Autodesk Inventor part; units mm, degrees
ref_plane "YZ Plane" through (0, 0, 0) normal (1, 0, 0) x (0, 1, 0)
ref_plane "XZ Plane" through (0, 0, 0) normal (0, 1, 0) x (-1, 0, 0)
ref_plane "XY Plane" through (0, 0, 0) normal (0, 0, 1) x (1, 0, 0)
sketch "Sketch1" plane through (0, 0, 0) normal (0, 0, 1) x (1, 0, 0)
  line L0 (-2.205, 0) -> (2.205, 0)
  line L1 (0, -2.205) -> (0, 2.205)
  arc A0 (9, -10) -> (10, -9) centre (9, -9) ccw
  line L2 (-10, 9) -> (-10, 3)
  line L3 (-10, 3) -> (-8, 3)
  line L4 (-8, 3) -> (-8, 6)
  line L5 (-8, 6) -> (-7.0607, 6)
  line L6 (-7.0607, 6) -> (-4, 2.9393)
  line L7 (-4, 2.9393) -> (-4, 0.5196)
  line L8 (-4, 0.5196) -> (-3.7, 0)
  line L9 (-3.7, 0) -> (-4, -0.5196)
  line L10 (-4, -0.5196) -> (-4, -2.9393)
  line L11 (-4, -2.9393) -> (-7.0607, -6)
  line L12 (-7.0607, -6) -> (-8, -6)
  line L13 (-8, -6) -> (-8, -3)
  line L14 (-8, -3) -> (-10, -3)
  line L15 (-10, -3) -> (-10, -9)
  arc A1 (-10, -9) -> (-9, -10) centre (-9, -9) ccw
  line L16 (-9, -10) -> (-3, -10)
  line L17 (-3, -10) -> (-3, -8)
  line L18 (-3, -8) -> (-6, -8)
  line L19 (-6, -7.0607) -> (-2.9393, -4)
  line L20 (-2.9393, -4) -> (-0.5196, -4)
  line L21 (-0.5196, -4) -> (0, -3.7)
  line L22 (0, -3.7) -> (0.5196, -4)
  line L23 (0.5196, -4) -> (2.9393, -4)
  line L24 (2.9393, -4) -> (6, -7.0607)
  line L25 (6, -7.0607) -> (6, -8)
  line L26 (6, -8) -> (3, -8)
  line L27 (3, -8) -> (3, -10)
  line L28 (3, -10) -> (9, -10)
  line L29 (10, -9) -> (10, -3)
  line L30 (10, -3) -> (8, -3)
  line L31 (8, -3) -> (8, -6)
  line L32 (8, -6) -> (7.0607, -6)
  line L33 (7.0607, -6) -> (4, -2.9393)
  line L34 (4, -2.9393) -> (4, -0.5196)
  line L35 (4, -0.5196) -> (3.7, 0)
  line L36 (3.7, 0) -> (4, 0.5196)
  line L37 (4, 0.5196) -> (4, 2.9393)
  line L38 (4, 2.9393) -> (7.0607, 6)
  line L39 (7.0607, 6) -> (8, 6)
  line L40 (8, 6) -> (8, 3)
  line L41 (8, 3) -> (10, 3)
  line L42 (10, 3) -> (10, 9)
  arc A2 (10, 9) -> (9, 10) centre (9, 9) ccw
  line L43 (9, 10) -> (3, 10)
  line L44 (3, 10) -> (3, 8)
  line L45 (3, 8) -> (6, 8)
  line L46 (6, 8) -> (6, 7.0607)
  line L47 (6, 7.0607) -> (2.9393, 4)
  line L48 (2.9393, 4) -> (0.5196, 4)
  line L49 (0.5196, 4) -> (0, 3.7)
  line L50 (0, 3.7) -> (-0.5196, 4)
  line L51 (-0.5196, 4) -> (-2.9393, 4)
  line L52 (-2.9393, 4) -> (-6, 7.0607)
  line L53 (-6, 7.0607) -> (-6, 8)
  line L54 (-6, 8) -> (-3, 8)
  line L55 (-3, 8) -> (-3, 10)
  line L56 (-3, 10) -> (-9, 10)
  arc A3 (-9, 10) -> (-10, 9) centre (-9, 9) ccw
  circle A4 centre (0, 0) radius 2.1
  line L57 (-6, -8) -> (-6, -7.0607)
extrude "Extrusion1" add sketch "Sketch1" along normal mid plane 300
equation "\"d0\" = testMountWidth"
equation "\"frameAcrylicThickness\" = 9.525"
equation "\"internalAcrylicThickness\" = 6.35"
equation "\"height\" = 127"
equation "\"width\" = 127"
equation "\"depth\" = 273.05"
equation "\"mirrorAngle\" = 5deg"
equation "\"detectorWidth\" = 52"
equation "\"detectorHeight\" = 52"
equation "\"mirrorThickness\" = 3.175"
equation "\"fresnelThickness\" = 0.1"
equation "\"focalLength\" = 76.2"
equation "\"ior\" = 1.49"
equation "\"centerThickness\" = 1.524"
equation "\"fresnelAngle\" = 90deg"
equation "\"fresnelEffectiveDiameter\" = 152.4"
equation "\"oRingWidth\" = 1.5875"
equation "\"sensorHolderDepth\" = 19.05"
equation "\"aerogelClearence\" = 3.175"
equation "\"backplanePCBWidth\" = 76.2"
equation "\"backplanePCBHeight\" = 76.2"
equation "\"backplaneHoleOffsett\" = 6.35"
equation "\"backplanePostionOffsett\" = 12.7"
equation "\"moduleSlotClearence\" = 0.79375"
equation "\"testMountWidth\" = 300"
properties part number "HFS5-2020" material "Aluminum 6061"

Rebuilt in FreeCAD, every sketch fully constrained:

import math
import FreeCAD as App
import Part
import Sketcher
Q = App.Units.Quantity

doc = App.newDocument("Part")
body = doc.addObject("PartDesign::Body", "Body")

# Sketch on XY plane
sketch1 = doc.addObject("Sketcher::SketchObject", "Sketch")
body.addObject(sketch1)
sketch1.AttachmentSupport = (doc.XY_Plane, [""])
sketch1.MapMode = "FlatFace"
sketch1.addGeometry(Part.LineSegment(App.Vector(3, -10, 0), App.Vector(9, -10, 0)), False)
sketch1.addGeometry(Part.ArcOfCircle(Part.Circle(App.Vector(9, -9, 0), App.Vector(0, 0, 1), 1), math.radians(-90), math.radians(0)), False)
sketch1.addGeometry(Part.LineSegment(App.Vector(10, -9, 0), App.Vector(10, -3, 0)), False)
sketch1.addGeometry(Part.LineSegment(App.Vector(10, -3, 0), App.Vector(8, -3, 0)), False)
sketch1.addGeometry(Part.LineSegment(App.Vector(8, -3, 0), App.Vector(8, -6, 0)), False)
sketch1.addGeometry(Part.LineSegment(App.Vector(8, -6, 0), App.Vector(7.1, -6, 0)), False)
sketch1.addGeometry(Part.LineSegment(App.Vector(7.1, -6, 0), App.Vector(4, -2.9, 0)), False)
sketch1.addGeometry(Part.LineSegment(App.Vector(4, -2.9, 0), App.Vector(4, -0.5, 0)), False)
sketch1.addGeometry(Part.LineSegment(App.Vector(4, -0.5, 0), App.Vector(3.7, 0, 0)), False)
sketch1.addGeometry(Part.LineSegment(App.Vector(3.7, 0, 0), App.Vector(4, 0.5, 0)), False)
sketch1.addGeometry(Part.LineSegment(App.Vector(4, 0.5, 0), App.Vector(4, 2.9, 0)), False)
sketch1.addGeometry(Part.LineSegment(App.Vector(4, 2.9, 0), App.Vector(7.1, 6, 0)), False)
sketch1.addGeometry(Part.LineSegment(App.Vector(7.1, 6, 0), App.Vector(8, 6, 0)), False)
sketch1.addGeometry(Part.LineSegment(App.Vector(8, 6, 0), App.Vector(8, 3, 0)), False)
sketch1.addGeometry(Part.LineSegment(App.Vector(8, 3, 0), App.Vector(10, 3, 0)), False)
sketch1.addGeometry(Part.LineSegment(App.Vector(10, 3, 0), App.Vector(10, 9, 0)), False)
sketch1.addGeometry(Part.ArcOfCircle(Part.Circle(App.Vector(9, 9, 0), App.Vector(0, 0, 1), 1), math.radians(0), math.radians(90)), False)
sketch1.addGeometry(Part.LineSegment(App.Vector(9, 10, 0), App.Vector(3, 10, 0)), False)
sketch1.addGeometry(Part.LineSegment(App.Vector(3, 10, 0), App.Vector(3, 8, 0)), False)
sketch1.addGeometry(Part.LineSegment(App.Vector(3, 8, 0), App.Vector(6, 8, 0)), False)
sketch1.addGeometry(Part.LineSegment(App.Vector(6, 8, 0), App.Vector(6, 7.1, 0)), False)
sketch1.addGeometry(Part.LineSegment(App.Vector(6, 7.1, 0), App.Vector(2.9, 4, 0)), False)
sketch1.addGeometry(Part.LineSegment(App.Vector(2.9, 4, 0), App.Vector(0.5, 4, 0)), False)
sketch1.addGeometry(Part.LineSegment(App.Vector(0.5, 4, 0), App.Vector(0, 3.7, 0)), False)
sketch1.addGeometry(Part.LineSegment(App.Vector(0, 3.7, 0), App.Vector(-0.5, 4, 0)), False)
sketch1.addGeometry(Part.LineSegment(App.Vector(-0.5, 4, 0), App.Vector(-2.9, 4, 0)), False)
sketch1.addGeometry(Part.LineSegment(App.Vector(-2.9, 4, 0), App.Vector(-6, 7.1, 0)), False)
sketch1.addGeometry(Part.LineSegment(App.Vector(-6, 7.1, 0), App.Vector(-6, 8, 0)), False)
sketch1.addGeometry(Part.LineSegment(App.Vector(-6, 8, 0), App.Vector(-3, 8, 0)), False)
sketch1.addGeometry(Part.LineSegment(App.Vector(-3, 8, 0), App.Vector(-3, 10, 0)), False)
sketch1.addGeometry(Part.LineSegment(App.Vector(-3, 10, 0), App.Vector(-9, 10, 0)), False)
sketch1.addGeometry(Part.ArcOfCircle(Part.Circle(App.Vector(-9, 9, 0), App.Vector(0, 0, 1), 1), math.radians(90), math.radians(180)), False)
sketch1.addGeometry(Part.LineSegment(App.Vector(-10, 9, 0), App.Vector(-10, 3, 0)), False)
sketch1.addGeometry(Part.LineSegment(App.Vector(-10, 3, 0), App.Vector(-8, 3, 0)), False)
sketch1.addGeometry(Part.LineSegment(App.Vector(-8, 3, 0), App.Vector(-8, 6, 0)), False)
sketch1.addGeometry(Part.LineSegment(App.Vector(-8, 6, 0), App.Vector(-7.1, 6, 0)), False)
sketch1.addGeometry(Part.LineSegment(App.Vector(-7.1, 6, 0), App.Vector(-4, 2.9, 0)), False)
sketch1.addGeometry(Part.LineSegment(App.Vector(-4, 2.9, 0), App.Vector(-4, 0.5, 0)), False)
sketch1.addGeometry(Part.LineSegment(App.Vector(-4, 0.5, 0), App.Vector(-3.7, 0, 0)), False)
sketch1.addGeometry(Part.LineSegment(App.Vector(-3.7, 0, 0), App.Vector(-4, -0.5, 0)), False)
sketch1.addGeometry(Part.LineSegment(App.Vector(-4, -0.5, 0), App.Vector(-4, -2.9, 0)), False)
sketch1.addGeometry(Part.LineSegment(App.Vector(-4, -2.9, 0), App.Vector(-7.1, -6, 0)), False)
sketch1.addGeometry(Part.LineSegment(App.Vector(-7.1, -6, 0), App.Vector(-8, -6, 0)), False)
sketch1.addGeometry(Part.LineSegment(App.Vector(-8, -6, 0), App.Vector(-8, -3, 0)), False)
sketch1.addGeometry(Part.LineSegment(App.Vector(-8, -3, 0), App.Vector(-10, -3, 0)), False)
sketch1.addGeometry(Part.LineSegment(App.Vector(-10, -3, 0), App.Vector(-10, -9, 0)), False)
sketch1.addGeometry(Part.ArcOfCircle(Part.Circle(App.Vector(-9, -9, 0), App.Vector(0, 0, 1), 1), math.radians(180), math.radians(270)), False)
sketch1.addGeometry(Part.LineSegment(App.Vector(-9, -10, 0), App.Vector(-3, -10, 0)), False)
sketch1.addGeometry(Part.LineSegment(App.Vector(-3, -10, 0), App.Vector(-3, -8, 0)), False)
sketch1.addGeometry(Part.LineSegment(App.Vector(-3, -8, 0), App.Vector(-6, -8, 0)), False)
sketch1.addGeometry(Part.LineSegment(App.Vector(-6, -8, 0), App.Vector(-6, -7.1, 0)), False)
sketch1.addGeometry(Part.LineSegment(App.Vector(-6, -7.1, 0), App.Vector(-2.9, -4, 0)), False)
sketch1.addGeometry(Part.LineSegment(App.Vector(-2.9, -4, 0), App.Vector(-0.5, -4, 0)), False)
sketch1.addGeometry(Part.LineSegment(App.Vector(-0.5, -4, 0), App.Vector(0, -3.7, 0)), False)
sketch1.addGeometry(Part.LineSegment(App.Vector(0, -3.7, 0), App.Vector(0.5, -4, 0)), False)
sketch1.addGeometry(Part.LineSegment(App.Vector(0.5, -4, 0), App.Vector(2.9, -4, 0)), False)
sketch1.addGeometry(Part.LineSegment(App.Vector(2.9, -4, 0), App.Vector(6, -7.1, 0)), False)
sketch1.addGeometry(Part.LineSegment(App.Vector(6, -7.1, 0), App.Vector(6, -8, 0)), False)
sketch1.addGeometry(Part.LineSegment(App.Vector(6, -8, 0), App.Vector(3, -8, 0)), False)
sketch1.addGeometry(Part.LineSegment(App.Vector(3, -8, 0), App.Vector(3, -10, 0)), False)
sketch1.addGeometry(Part.Circle(App.Vector(0, 0, 0), App.Vector(0, 0, 1), 2.1), False)
sketch1.addConstraint(Sketcher.Constraint("Tangent", 0, 2, 1, 1))
sketch1.addConstraint(Sketcher.Constraint("Tangent", 1, 2, 2, 1))
sketch1.addConstraint(Sketcher.Constraint("Coincident", 2, 2, 3, 1))
sketch1.addConstraint(Sketcher.Constraint("Coincident", 3, 2, 4, 1))
sketch1.addConstraint(Sketcher.Constraint("Coincident", 4, 2, 5, 1))
sketch1.addConstraint(Sketcher.Constraint("Coincident", 5, 2, 6, 1))
sketch1.addConstraint(Sketcher.Constraint("Coincident", 6, 2, 7, 1))
sketch1.addConstraint(Sketcher.Constraint("Coincident", 7, 2, 8, 1))
sketch1.addConstraint(Sketcher.Constraint("Coincident", 8, 2, 9, 1))
sketch1.addConstraint(Sketcher.Constraint("Coincident", 9, 2, 10, 1))
sketch1.addConstraint(Sketcher.Constraint("Coincident", 10, 2, 11, 1))
sketch1.addConstraint(Sketcher.Constraint("Coincident", 11, 2, 12, 1))
sketch1.addConstraint(Sketcher.Constraint("Coincident", 12, 2, 13, 1))
sketch1.addConstraint(Sketcher.Constraint("Coincident", 13, 2, 14, 1))
sketch1.addConstraint(Sketcher.Constraint("Coincident", 14, 2, 15, 1))
sketch1.addConstraint(Sketcher.Constraint("Tangent", 15, 2, 16, 1))
sketch1.addConstraint(Sketcher.Constraint("Tangent", 16, 2, 17, 1))
sketch1.addConstraint(Sketcher.Constraint("Coincident", 17, 2, 18, 1))
sketch1.addConstraint(Sketcher.Constraint("Coincident", 18, 2, 19, 1))
sketch1.addConstraint(Sketcher.Constraint("Coincident", 19, 2, 20, 1))
sketch1.addConstraint(Sketcher.Constraint("Coincident", 20, 2, 21, 1))
sketch1.addConstraint(Sketcher.Constraint("Coincident", 21, 2, 22, 1))
sketch1.addConstraint(Sketcher.Constraint("Coincident", 22, 2, 23, 1))
sketch1.addConstraint(Sketcher.Constraint("Coincident", 23, 2, 24, 1))
sketch1.addConstraint(Sketcher.Constraint("Coincident", 24, 2, 25, 1))
sketch1.addConstraint(Sketcher.Constraint("Coincident", 25, 2, 26, 1))
sketch1.addConstraint(Sketcher.Constraint("Coincident", 26, 2, 27, 1))
sketch1.addConstraint(Sketcher.Constraint("Coincident", 27, 2, 28, 1))
sketch1.addConstraint(Sketcher.Constraint("Coincident", 28, 2, 29, 1))
sketch1.addConstraint(Sketcher.Constraint("Coincident", 29, 2, 30, 1))
sketch1.addConstraint(Sketcher.Constraint("Tangent", 30, 2, 31, 1))
sketch1.addConstraint(Sketcher.Constraint("Tangent", 31, 2, 32, 1))
sketch1.addConstraint(Sketcher.Constraint("Coincident", 32, 2, 33, 1))
sketch1.addConstraint(Sketcher.Constraint("Coincident", 33, 2, 34, 1))
sketch1.addConstraint(Sketcher.Constraint("Coincident", 34, 2, 35, 1))
sketch1.addConstraint(Sketcher.Constraint("Coincident", 35, 2, 36, 1))
sketch1.addConstraint(Sketcher.Constraint("Coincident", 36, 2, 37, 1))
sketch1.addConstraint(Sketcher.Constraint("Coincident", 37, 2, 38, 1))
sketch1.addConstraint(Sketcher.Constraint("Coincident", 38, 2, 39, 1))
sketch1.addConstraint(Sketcher.Constraint("Coincident", 39, 2, 40, 1))
sketch1.addConstraint(Sketcher.Constraint("Coincident", 40, 2, 41, 1))
sketch1.addConstraint(Sketcher.Constraint("Coincident", 41, 2, 42, 1))
sketch1.addConstraint(Sketcher.Constraint("Coincident", 42, 2, 43, 1))
sketch1.addConstraint(Sketcher.Constraint("Coincident", 43, 2, 44, 1))
sketch1.addConstraint(Sketcher.Constraint("Coincident", 44, 2, 45, 1))
sketch1.addConstraint(Sketcher.Constraint("Tangent", 45, 2, 46, 1))
sketch1.addConstraint(Sketcher.Constraint("Tangent", 46, 2, 47, 1))
sketch1.addConstraint(Sketcher.Constraint("Coincident", 47, 2, 48, 1))
sketch1.addConstraint(Sketcher.Constraint("Coincident", 48, 2, 49, 1))
sketch1.addConstraint(Sketcher.Constraint("Coincident", 49, 2, 50, 1))
sketch1.addConstraint(Sketcher.Constraint("Coincident", 50, 2, 51, 1))
sketch1.addConstraint(Sketcher.Constraint("Coincident", 51, 2, 52, 1))
sketch1.addConstraint(Sketcher.Constraint("Coincident", 52, 2, 53, 1))
sketch1.addConstraint(Sketcher.Constraint("Coincident", 53, 2, 54, 1))
sketch1.addConstraint(Sketcher.Constraint("Coincident", 54, 2, 55, 1))
sketch1.addConstraint(Sketcher.Constraint("Coincident", 55, 2, 56, 1))
sketch1.addConstraint(Sketcher.Constraint("Coincident", 56, 2, 57, 1))
sketch1.addConstraint(Sketcher.Constraint("Coincident", 57, 2, 58, 1))
sketch1.addConstraint(Sketcher.Constraint("Coincident", 58, 2, 59, 1))
sketch1.addConstraint(Sketcher.Constraint("Coincident", 59, 2, 0, 1))
sketch1.addConstraint(Sketcher.Constraint("Horizontal", 0))
sketch1.addConstraint(Sketcher.Constraint("Vertical", 2))
sketch1.addConstraint(Sketcher.Constraint("Horizontal", 3))
sketch1.addConstraint(Sketcher.Constraint("Vertical", 4))
sketch1.addConstraint(Sketcher.Constraint("Horizontal", 5))
sketch1.addConstraint(Sketcher.Constraint("Vertical", 7))
sketch1.addConstraint(Sketcher.Constraint("Vertical", 10))
sketch1.addConstraint(Sketcher.Constraint("Horizontal", 12))
sketch1.addConstraint(Sketcher.Constraint("Vertical", 13))
sketch1.addConstraint(Sketcher.Constraint("Horizontal", 14))
sketch1.addConstraint(Sketcher.Constraint("Vertical", 15))
sketch1.addConstraint(Sketcher.Constraint("Horizontal", 17))
sketch1.addConstraint(Sketcher.Constraint("Vertical", 18))
sketch1.addConstraint(Sketcher.Constraint("Horizontal", 19))
sketch1.addConstraint(Sketcher.Constraint("Vertical", 20))
sketch1.addConstraint(Sketcher.Constraint("Horizontal", 22))
sketch1.addConstraint(Sketcher.Constraint("Horizontal", 25))
sketch1.addConstraint(Sketcher.Constraint("Vertical", 27))
sketch1.addConstraint(Sketcher.Constraint("Horizontal", 28))
sketch1.addConstraint(Sketcher.Constraint("Vertical", 29))
sketch1.addConstraint(Sketcher.Constraint("Horizontal", 30))
sketch1.addConstraint(Sketcher.Constraint("Vertical", 32))
sketch1.addConstraint(Sketcher.Constraint("Horizontal", 33))
sketch1.addConstraint(Sketcher.Constraint("Vertical", 34))
sketch1.addConstraint(Sketcher.Constraint("Horizontal", 35))
sketch1.addConstraint(Sketcher.Constraint("Vertical", 37))
sketch1.addConstraint(Sketcher.Constraint("Vertical", 40))
sketch1.addConstraint(Sketcher.Constraint("Horizontal", 42))
sketch1.addConstraint(Sketcher.Constraint("Vertical", 43))
sketch1.addConstraint(Sketcher.Constraint("Horizontal", 44))
sketch1.addConstraint(Sketcher.Constraint("Vertical", 45))
sketch1.addConstraint(Sketcher.Constraint("Horizontal", 47))
sketch1.addConstraint(Sketcher.Constraint("Vertical", 48))
sketch1.addConstraint(Sketcher.Constraint("Horizontal", 49))
sketch1.addConstraint(Sketcher.Constraint("Vertical", 50))
sketch1.addConstraint(Sketcher.Constraint("Horizontal", 52))
sketch1.addConstraint(Sketcher.Constraint("Horizontal", 55))
sketch1.addConstraint(Sketcher.Constraint("Vertical", 57))
sketch1.addConstraint(Sketcher.Constraint("Horizontal", 58))
sketch1.addConstraint(Sketcher.Constraint("Vertical", 59))
sketch1.addConstraint(Sketcher.Constraint("Coincident", 60, 3, -1, 1))
sketch1.addConstraint(Sketcher.Constraint("Equal", 1, 16))
sketch1.addConstraint(Sketcher.Constraint("Equal", 16, 31))
sketch1.addConstraint(Sketcher.Constraint("Equal", 31, 46))
sketch1.addConstraint(Sketcher.Constraint("Symmetric", 1, 3, 31, 3, -1, 1))
sketch1.addConstraint(Sketcher.Constraint("Symmetric", 16, 3, 46, 3, -1, 1))
sketch1.addConstraint(Sketcher.Constraint("Symmetric", 3, 2, 33, 2, -1, 1))
sketch1.addConstraint(Sketcher.Constraint("Symmetric", 5, 2, 35, 2, -1, 1))
sketch1.addConstraint(Sketcher.Constraint("Symmetric", 6, 2, 36, 2, -1, 1))
sketch1.addConstraint(Sketcher.Constraint("Symmetric", 8, 2, 38, 2, -1, 1))
sketch1.addConstraint(Sketcher.Constraint("Symmetric", 9, 2, 39, 2, -1, 1))
sketch1.addConstraint(Sketcher.Constraint("Symmetric", 11, 2, 41, 2, -1, 1))
sketch1.addConstraint(Sketcher.Constraint("Symmetric", 13, 2, 43, 2, -1, 1))
sketch1.addConstraint(Sketcher.Constraint("Symmetric", 18, 2, 48, 2, -1, 1))
sketch1.addConstraint(Sketcher.Constraint("Symmetric", 20, 2, 50, 2, -1, 1))
sketch1.addConstraint(Sketcher.Constraint("Symmetric", 21, 2, 51, 2, -1, 1))
sketch1.addConstraint(Sketcher.Constraint("Symmetric", 23, 2, 53, 2, -1, 1))
sketch1.addConstraint(Sketcher.Constraint("Symmetric", 24, 2, 54, 2, -1, 1))
sketch1.addConstraint(Sketcher.Constraint("Symmetric", 26, 2, 56, 2, -1, 1))
sketch1.addConstraint(Sketcher.Constraint("Symmetric", 28, 2, 58, 2, -1, 1))
sketch1.addConstraint(Sketcher.Constraint("Symmetric", 16, 3, 31, 3, -2))
sketch1.addConstraint(Sketcher.Constraint("Symmetric", 22, 2, 24, 2, -2))
sketch1.addConstraint(Sketcher.Constraint("Symmetric", 20, 2, 26, 2, -2))
sketch1.addConstraint(Sketcher.Constraint("Symmetric", 18, 2, 28, 2, -2))
sketch1.addConstraint(Sketcher.Constraint("Symmetric", 13, 2, 33, 2, -2))
sketch1.addConstraint(Sketcher.Constraint("Symmetric", 11, 2, 35, 2, -2))
sketch1.addConstraint(Sketcher.Constraint("Symmetric", 10, 2, 36, 2, -2))
sketch1.addConstraint(Sketcher.Constraint("PointOnObject", 8, 2, -1))
sketch1.addConstraint(Sketcher.Constraint("PointOnObject", 23, 2, -2))
sketch1.addConstraint(Sketcher.Constraint("Perpendicular", 6, 11))
sketch1.addConstraint(Sketcher.Constraint("Parallel", 11, 21))
sketch1.addConstraint(Sketcher.Constraint("Perpendicular", 8, 23))
sketch1.addConstraint(Sketcher.Constraint("Perpendicular", 9, 24))
sketch1.addConstraint(Sketcher.Constraint("Perpendicular", 21, 26))
sketch1.addConstraint(Sketcher.Constraint("Perpendicular", 23, 38))
sketch1.addConstraint(Sketcher.Constraint("Perpendicular", 36, 41))
sketch1.addConstraint(Sketcher.Constraint("Perpendicular", 38, 53))
sketch1.addConstraint(Sketcher.Constraint("Perpendicular", 51, 56))
sketch1.addConstraint(Sketcher.Constraint("Equal", 47, 2))
sketch1.addConstraint(Sketcher.Constraint("Equal", 58, 4))
sketch1.addConstraint(Sketcher.Constraint("Equal", 55, 7))
sketch1.addConstraint(Sketcher.Constraint("Equal", 44, 18))
sketch1.addConstraint(Sketcher.Constraint("Equal", 42, 20))
sketch1.addConstraint(Sketcher.Constraint("Equal", 11, 21))
sketch1.addConstraint(Sketcher.Constraint("Equal", 9, 23))
sketch1.addConstraint(Sketcher.Constraint("Radius", 1, 1.0))
sketch1.addConstraint(Sketcher.Constraint("Diameter", 60, 4.2))
sketch1.addConstraint(Sketcher.Constraint("DistanceX", 0, 1, 0, 2, 6.0))
sketch1.addConstraint(Sketcher.Constraint("DistanceX", 3, 2, 3, 1, 2.0))
sketch1.addConstraint(Sketcher.Constraint("DistanceX", 19, 1, 19, 2, 3.0))
sketch1.addConstraint(Sketcher.Constraint("Angle", 8, Q("120.0007 deg")))
sketch1.addConstraint(Sketcher.Constraint("DistanceX", -1, 1, 1, 3, 9.0))
sketch1.addConstraint(Sketcher.Constraint("DistanceX", -1, 1, 6, 2, 4.0))
sketch1.addConstraint(Sketcher.Constraint("Distance", 8, 0.6))
sketch1.addConstraint(Sketcher.Constraint("DistanceX", 5, 2, 5, 1, 0.9393))
pad1 = doc.addObject("PartDesign::Pad", "Pad")
body.addObject(pad1)
pad1.Profile = sketch1
pad1.Length = 300
pad1.Midplane = True

doc.recompute()
